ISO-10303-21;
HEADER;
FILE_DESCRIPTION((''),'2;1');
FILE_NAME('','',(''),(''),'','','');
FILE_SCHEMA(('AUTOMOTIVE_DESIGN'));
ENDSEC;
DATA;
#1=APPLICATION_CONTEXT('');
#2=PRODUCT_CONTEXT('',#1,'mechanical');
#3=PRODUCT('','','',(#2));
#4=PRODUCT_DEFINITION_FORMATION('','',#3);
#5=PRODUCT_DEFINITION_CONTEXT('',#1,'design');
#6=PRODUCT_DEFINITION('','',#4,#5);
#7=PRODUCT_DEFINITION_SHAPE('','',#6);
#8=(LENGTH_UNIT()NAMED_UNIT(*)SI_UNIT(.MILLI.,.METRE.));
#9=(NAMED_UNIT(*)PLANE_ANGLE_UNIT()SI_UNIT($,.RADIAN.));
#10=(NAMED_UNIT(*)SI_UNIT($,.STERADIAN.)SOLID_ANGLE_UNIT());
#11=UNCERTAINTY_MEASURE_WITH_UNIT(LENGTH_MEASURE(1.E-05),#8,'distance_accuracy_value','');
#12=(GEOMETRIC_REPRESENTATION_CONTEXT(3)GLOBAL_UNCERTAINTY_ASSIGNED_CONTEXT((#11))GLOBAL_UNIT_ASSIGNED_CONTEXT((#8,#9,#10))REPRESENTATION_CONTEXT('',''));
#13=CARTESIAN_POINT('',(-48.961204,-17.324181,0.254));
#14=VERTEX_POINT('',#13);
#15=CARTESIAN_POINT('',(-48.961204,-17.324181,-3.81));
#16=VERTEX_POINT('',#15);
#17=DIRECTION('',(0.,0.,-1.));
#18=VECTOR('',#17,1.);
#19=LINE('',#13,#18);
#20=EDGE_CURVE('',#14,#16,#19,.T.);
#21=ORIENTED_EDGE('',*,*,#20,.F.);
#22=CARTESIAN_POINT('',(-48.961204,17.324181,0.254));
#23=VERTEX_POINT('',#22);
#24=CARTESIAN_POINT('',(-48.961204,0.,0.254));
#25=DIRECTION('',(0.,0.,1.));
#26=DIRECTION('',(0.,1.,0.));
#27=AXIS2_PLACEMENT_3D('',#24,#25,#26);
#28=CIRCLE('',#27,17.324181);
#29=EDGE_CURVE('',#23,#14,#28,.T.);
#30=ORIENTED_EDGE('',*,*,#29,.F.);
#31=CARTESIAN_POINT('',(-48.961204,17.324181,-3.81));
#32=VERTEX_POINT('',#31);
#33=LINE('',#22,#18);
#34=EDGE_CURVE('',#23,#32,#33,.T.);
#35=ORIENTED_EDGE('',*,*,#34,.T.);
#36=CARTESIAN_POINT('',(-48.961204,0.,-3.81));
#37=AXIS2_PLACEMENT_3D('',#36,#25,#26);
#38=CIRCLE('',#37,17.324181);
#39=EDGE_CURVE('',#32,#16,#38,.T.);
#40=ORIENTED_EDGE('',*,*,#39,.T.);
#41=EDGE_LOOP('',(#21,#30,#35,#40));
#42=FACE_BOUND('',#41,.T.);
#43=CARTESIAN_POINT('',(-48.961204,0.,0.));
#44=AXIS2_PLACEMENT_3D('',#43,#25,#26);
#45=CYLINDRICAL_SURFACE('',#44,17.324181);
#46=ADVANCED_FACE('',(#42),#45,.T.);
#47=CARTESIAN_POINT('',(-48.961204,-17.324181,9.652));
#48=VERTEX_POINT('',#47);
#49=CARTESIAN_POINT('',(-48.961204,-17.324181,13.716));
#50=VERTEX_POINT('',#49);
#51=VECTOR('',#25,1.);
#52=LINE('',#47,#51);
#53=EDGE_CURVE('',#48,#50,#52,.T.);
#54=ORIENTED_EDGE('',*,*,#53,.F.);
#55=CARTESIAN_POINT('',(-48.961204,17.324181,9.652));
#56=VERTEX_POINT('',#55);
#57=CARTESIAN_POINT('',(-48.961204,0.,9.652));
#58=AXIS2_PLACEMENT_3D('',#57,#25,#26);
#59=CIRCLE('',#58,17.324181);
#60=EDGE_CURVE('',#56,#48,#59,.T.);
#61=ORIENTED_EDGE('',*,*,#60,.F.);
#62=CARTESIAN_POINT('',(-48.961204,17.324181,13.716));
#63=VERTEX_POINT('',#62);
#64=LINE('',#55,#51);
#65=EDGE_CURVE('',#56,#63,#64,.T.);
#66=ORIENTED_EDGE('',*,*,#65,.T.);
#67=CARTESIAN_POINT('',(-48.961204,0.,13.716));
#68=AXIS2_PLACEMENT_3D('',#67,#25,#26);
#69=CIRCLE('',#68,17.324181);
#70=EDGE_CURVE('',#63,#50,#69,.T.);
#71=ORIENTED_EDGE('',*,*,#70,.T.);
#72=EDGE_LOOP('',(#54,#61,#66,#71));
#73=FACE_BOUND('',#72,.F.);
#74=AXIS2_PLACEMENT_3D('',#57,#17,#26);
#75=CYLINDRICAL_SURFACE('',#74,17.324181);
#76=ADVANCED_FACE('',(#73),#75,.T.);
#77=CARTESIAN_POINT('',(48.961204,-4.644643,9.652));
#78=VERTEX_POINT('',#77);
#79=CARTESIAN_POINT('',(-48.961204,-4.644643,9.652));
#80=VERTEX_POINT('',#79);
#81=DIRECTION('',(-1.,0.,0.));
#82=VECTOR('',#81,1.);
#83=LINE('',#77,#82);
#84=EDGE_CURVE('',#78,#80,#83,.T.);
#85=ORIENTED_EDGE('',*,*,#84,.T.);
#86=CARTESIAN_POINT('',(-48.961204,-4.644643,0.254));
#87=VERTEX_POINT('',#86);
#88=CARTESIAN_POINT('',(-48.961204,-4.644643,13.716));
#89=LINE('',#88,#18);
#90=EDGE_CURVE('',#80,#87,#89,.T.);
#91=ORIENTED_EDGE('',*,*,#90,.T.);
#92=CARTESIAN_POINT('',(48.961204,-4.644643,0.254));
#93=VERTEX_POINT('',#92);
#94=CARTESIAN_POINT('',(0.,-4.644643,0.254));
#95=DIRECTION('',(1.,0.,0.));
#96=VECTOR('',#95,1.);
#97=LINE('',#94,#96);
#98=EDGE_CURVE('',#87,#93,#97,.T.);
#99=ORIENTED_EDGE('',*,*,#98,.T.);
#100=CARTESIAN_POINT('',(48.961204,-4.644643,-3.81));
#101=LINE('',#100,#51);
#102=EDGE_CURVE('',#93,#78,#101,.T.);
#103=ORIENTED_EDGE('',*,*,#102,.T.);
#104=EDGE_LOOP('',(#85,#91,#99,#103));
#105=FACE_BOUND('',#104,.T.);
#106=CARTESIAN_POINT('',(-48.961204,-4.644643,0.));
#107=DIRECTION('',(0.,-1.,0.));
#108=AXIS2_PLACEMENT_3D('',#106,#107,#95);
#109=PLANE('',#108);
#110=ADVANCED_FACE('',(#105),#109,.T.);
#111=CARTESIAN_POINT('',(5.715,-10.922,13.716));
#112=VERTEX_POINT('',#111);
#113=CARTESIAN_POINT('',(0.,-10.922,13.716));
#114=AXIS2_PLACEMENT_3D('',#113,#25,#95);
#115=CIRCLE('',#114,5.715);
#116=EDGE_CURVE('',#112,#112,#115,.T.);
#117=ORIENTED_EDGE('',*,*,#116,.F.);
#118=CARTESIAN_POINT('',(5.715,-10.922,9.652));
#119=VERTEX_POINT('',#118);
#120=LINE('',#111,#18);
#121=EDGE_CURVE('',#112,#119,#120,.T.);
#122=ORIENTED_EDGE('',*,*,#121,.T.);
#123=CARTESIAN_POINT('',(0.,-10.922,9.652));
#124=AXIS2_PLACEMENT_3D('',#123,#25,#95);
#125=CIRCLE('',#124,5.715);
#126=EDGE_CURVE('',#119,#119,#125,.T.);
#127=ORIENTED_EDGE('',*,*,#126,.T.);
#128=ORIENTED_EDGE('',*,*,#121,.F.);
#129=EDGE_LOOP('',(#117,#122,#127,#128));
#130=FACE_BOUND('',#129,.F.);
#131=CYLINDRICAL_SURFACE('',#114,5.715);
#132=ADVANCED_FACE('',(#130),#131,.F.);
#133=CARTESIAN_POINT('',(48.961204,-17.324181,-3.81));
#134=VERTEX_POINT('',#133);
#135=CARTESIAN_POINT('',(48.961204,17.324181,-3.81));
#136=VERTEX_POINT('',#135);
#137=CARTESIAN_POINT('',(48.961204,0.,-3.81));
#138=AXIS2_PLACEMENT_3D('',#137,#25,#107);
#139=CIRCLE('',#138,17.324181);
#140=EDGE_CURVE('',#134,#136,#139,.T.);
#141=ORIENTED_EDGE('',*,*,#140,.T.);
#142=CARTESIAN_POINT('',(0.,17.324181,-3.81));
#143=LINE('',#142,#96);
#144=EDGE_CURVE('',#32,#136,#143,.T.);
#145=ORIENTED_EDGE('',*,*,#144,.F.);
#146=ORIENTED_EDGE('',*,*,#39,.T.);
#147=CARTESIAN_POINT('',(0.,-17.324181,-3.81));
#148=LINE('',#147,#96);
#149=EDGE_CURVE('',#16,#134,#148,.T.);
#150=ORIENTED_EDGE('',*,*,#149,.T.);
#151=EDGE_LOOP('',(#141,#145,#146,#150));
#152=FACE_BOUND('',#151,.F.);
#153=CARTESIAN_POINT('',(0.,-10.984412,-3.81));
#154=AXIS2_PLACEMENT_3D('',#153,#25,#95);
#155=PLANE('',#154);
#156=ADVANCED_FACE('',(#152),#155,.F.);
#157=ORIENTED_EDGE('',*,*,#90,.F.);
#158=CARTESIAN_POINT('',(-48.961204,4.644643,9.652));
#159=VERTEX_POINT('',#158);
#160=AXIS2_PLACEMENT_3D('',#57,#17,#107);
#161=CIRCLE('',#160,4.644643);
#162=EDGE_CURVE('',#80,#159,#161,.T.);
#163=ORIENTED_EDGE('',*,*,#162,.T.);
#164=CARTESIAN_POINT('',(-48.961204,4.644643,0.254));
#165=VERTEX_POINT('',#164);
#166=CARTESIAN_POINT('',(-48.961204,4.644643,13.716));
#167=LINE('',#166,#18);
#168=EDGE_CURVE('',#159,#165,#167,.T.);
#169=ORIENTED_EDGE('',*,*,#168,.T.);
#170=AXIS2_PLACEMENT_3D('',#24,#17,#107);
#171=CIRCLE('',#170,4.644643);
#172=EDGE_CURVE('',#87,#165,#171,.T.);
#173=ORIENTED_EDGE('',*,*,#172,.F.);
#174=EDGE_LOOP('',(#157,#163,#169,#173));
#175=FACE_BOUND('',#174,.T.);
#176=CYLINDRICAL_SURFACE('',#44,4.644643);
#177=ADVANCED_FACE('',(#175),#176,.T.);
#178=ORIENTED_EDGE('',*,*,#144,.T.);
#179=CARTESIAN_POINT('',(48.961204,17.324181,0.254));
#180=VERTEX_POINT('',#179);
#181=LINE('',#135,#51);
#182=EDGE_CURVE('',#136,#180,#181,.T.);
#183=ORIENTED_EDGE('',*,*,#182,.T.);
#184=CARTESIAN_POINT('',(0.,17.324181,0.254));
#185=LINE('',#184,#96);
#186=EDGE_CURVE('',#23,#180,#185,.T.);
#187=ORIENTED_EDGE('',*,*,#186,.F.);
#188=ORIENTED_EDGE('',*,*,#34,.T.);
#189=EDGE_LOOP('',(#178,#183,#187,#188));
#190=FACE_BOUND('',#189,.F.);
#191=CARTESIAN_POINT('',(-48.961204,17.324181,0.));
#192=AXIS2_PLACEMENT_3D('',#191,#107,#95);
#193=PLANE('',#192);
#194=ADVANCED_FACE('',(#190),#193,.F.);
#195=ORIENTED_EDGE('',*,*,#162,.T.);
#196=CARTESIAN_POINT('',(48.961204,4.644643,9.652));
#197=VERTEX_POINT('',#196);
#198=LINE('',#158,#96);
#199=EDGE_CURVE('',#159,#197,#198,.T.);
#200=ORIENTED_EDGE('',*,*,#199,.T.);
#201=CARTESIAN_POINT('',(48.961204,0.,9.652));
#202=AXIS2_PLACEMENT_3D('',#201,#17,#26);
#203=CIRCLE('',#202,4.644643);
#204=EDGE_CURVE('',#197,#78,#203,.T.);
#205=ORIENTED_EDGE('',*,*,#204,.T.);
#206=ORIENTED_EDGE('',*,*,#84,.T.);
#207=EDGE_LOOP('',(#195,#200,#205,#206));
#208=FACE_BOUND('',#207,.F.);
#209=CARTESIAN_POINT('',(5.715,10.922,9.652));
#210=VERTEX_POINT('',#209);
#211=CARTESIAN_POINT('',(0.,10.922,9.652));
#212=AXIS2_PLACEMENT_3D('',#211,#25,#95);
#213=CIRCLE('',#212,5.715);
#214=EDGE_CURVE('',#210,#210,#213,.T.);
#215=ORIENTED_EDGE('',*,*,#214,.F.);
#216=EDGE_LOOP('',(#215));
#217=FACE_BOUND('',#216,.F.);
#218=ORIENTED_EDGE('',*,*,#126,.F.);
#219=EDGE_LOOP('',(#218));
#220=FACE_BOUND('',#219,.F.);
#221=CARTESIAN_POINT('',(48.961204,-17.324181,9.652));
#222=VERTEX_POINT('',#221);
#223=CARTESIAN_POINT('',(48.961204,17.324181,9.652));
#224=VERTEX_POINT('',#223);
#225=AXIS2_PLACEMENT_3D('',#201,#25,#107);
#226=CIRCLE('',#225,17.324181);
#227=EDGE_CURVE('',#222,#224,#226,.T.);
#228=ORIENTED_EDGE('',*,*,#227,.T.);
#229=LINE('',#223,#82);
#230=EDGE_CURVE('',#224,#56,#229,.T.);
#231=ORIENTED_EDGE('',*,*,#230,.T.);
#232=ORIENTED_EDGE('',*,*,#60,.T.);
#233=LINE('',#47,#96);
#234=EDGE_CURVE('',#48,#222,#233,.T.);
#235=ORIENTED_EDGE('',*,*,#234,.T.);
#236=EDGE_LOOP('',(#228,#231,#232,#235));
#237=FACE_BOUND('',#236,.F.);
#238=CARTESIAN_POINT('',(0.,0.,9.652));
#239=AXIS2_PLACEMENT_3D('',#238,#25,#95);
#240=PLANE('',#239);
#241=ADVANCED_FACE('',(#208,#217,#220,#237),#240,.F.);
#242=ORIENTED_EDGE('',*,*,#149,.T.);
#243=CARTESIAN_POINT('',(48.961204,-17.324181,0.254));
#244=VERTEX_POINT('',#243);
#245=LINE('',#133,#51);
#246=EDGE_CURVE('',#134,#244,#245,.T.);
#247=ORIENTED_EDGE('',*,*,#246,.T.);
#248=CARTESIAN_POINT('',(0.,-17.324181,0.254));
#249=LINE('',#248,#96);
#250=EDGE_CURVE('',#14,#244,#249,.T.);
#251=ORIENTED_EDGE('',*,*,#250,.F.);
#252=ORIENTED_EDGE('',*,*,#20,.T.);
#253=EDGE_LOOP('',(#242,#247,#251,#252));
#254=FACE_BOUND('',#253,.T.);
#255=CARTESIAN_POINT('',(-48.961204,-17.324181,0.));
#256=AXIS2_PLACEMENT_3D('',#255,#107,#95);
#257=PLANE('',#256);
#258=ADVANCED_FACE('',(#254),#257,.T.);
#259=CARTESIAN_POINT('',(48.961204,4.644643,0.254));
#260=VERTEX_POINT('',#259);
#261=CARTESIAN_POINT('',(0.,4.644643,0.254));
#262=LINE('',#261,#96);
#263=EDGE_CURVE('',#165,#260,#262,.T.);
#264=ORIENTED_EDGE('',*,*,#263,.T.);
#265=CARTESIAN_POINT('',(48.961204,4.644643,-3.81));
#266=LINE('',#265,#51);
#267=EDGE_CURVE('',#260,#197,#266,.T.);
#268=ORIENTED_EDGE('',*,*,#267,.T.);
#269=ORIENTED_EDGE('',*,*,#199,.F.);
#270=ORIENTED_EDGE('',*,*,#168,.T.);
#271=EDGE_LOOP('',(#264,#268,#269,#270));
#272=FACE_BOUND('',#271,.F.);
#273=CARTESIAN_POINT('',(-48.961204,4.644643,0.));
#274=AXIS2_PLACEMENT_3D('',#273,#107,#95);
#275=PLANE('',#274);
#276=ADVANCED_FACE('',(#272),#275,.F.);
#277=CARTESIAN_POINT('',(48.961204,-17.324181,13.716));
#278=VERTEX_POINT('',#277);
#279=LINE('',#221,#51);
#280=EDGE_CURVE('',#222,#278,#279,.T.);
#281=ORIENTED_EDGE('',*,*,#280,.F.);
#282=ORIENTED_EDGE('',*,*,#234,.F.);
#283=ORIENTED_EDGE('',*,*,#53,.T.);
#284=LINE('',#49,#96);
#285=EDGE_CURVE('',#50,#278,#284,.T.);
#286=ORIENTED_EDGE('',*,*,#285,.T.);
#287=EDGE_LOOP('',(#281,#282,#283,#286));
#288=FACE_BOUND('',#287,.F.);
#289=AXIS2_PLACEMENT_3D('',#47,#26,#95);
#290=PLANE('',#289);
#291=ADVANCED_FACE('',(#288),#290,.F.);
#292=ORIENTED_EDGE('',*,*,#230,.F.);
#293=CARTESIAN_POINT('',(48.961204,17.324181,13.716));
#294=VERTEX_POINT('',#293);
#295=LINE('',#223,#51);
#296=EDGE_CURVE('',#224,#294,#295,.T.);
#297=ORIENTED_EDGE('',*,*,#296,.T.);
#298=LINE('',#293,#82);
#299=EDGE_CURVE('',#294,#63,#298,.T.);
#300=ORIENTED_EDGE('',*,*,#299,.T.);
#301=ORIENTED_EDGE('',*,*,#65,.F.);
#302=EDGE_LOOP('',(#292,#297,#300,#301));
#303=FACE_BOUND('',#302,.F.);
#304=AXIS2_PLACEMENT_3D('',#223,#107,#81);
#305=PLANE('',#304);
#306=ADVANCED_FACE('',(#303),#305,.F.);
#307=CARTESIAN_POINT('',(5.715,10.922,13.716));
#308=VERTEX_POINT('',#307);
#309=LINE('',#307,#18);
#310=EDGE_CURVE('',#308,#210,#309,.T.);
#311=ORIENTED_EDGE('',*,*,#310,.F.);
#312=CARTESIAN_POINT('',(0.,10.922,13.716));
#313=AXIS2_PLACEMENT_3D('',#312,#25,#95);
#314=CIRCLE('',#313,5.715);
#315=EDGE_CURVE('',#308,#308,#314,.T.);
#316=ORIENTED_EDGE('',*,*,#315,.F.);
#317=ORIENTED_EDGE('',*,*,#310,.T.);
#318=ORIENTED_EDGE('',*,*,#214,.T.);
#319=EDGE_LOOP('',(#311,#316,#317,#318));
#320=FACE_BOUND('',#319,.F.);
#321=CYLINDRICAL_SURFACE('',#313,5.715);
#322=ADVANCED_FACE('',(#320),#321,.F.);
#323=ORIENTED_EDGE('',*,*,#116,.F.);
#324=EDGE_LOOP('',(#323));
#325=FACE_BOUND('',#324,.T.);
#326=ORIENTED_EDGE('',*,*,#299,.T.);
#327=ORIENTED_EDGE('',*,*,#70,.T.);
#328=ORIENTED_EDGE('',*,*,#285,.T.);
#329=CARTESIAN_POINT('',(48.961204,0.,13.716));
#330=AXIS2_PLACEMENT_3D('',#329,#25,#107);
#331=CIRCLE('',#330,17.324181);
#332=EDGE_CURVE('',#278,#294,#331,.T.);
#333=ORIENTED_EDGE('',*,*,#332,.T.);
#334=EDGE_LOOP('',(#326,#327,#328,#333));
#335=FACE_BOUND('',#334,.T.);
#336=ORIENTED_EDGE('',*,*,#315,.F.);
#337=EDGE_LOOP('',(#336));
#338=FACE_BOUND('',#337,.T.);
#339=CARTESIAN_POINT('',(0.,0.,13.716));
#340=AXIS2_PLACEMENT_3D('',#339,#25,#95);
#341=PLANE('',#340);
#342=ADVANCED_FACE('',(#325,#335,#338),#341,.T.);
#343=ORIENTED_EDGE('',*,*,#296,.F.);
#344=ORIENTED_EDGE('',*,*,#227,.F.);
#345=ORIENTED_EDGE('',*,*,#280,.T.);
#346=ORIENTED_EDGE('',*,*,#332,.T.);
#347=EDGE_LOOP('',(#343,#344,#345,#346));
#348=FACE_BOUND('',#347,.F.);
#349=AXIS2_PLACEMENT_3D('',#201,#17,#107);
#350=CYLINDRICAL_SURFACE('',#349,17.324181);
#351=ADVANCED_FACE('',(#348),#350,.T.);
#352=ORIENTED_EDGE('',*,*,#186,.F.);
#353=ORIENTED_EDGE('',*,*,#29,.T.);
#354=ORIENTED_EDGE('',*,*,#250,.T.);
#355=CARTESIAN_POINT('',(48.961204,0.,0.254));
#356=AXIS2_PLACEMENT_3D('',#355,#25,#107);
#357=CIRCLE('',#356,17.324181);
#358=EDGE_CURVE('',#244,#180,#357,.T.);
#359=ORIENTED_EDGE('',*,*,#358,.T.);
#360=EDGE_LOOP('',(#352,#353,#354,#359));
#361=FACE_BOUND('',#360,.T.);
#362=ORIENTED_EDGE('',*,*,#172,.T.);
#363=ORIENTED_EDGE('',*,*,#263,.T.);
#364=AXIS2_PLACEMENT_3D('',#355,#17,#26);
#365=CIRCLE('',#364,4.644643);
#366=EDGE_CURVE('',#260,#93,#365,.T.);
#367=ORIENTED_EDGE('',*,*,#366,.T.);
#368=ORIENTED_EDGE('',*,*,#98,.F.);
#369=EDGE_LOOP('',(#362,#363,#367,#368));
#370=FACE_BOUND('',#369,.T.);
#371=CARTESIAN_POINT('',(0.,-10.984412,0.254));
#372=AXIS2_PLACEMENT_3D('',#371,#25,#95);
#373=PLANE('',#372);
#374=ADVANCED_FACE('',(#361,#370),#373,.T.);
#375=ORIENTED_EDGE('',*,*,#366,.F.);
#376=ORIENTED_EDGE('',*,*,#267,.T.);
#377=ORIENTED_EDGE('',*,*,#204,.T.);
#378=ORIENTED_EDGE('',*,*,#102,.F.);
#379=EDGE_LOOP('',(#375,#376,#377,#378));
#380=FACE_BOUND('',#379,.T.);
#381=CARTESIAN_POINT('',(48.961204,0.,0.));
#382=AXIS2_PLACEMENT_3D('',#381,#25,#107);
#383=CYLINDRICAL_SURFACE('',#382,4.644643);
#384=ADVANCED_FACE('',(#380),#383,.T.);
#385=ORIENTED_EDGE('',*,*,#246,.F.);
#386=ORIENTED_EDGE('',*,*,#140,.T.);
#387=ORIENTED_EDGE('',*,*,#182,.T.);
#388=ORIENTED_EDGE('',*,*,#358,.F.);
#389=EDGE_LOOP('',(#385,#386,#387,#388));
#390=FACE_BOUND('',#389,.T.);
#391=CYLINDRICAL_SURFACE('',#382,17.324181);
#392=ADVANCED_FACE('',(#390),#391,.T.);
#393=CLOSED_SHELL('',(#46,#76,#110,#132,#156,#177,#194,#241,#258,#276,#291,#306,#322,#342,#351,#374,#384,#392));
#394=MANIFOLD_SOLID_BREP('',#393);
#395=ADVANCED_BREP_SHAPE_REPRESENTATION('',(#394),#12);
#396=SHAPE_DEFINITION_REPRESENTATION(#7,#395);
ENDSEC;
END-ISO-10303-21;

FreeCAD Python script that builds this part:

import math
import FreeCAD as App
import Part
import Sketcher
from FreeCAD import Vector
Q = App.Units.Quantity

doc = App.newDocument("Part")
body = doc.addObject("PartDesign::Body", "Body")

# Sketch on XY plane
sketch1 = body.newObject("Sketcher::SketchObject", "Sketch")
sketch1.AttachmentSupport = (doc.getObject("XY_Plane"), [""])
sketch1.MapMode = "FlatFace"
sketch1.addGeometry(Part.LineSegment(Vector(-49, -4.6, 0), Vector(49, -4.6, 0)), False)
sketch1.addGeometry(Part.ArcOfCircle(Part.Circle(Vector(49, 0, 0), Vector(0, 0, 1), 4.6), math.radians(-90), math.radians(90)), False)
sketch1.addGeometry(Part.LineSegment(Vector(49, 4.6, 0), Vector(-49, 4.6, 0)), False)
sketch1.addGeometry(Part.ArcOfCircle(Part.Circle(Vector(-49, 0, 0), Vector(0, 0, 1), 4.6), math.radians(90), math.radians(270)), False)
sketch1.addConstraint(Sketcher.Constraint("Tangent", 0, 2, 1, 1))
sketch1.addConstraint(Sketcher.Constraint("Tangent", 1, 2, 2, 1))
sketch1.addConstraint(Sketcher.Constraint("Tangent", 2, 2, 3, 1))
sketch1.addConstraint(Sketcher.Constraint("Tangent", 3, 2, 0, 1))
sketch1.addConstraint(Sketcher.Constraint("Horizontal", 0))
sketch1.addConstraint(Sketcher.Constraint("Horizontal", 2))
sketch1.addConstraint(Sketcher.Constraint("Symmetric", 1, 3, 3, 3, -1, 1))
sketch1.addConstraint(Sketcher.Constraint("Radius", 1, Q("4.644643 mm")))
sketch1.addConstraint(Sketcher.Constraint("DistanceX", 0, 1, 0, 2, Q("97.922407 mm")))
pad1 = body.newObject("PartDesign::Pad", "Pad")
pad1.Profile = sketch1
pad1.Type = "TwoLengths"
pad1.Length = Q("0.54 in")
pad1.Length2 = Q("0.15 in")

# Sketch on XY plane
sketch2 = body.newObject("Sketcher::SketchObject", "Sketch001")
sketch2.AttachmentSupport = (doc.getObject("XY_Plane"), [""])
sketch2.MapMode = "FlatFace"
sketch2.addGeometry(Part.LineSegment(Vector(-49, -17.3, 0), Vector(49, -17.3, 0)), False)
sketch2.addGeometry(Part.ArcOfCircle(Part.Circle(Vector(49, 0, 0), Vector(0, 0, 1), 17.3), math.radians(-90), math.radians(90)), False)
sketch2.addGeometry(Part.LineSegment(Vector(49, 17.3, 0), Vector(-49, 17.3, 0)), False)
sketch2.addGeometry(Part.ArcOfCircle(Part.Circle(Vector(-49, 0, 0), Vector(0, 0, 1), 17.3), math.radians(90), math.radians(270)), False)
sketch2.addGeometry(Part.LineSegment(Vector(49, -4.6, 0), Vector(-49, -4.6, 0)), False)
sketch2.addGeometry(Part.ArcOfCircle(Part.Circle(Vector(-49, 0, 0), Vector(0, 0, 1), 4.6), math.radians(90), math.radians(270)), False)
sketch2.addGeometry(Part.LineSegment(Vector(-49, 4.6, 0), Vector(49, 4.6, 0)), False)
sketch2.addGeometry(Part.ArcOfCircle(Part.Circle(Vector(49, 0, 0), Vector(0, 0, 1), 4.6), math.radians(-90), math.radians(90)), False)
sketch2.addConstraint(Sketcher.Constraint("Tangent", 0, 2, 1, 1))
sketch2.addConstraint(Sketcher.Constraint("Tangent", 1, 2, 2, 1))
sketch2.addConstraint(Sketcher.Constraint("Tangent", 2, 2, 3, 1))
sketch2.addConstraint(Sketcher.Constraint("Tangent", 3, 2, 0, 1))
sketch2.addConstraint(Sketcher.Constraint("Tangent", 4, 2, 5, 2))
sketch2.addConstraint(Sketcher.Constraint("Tangent", 5, 1, 6, 1))
sketch2.addConstraint(Sketcher.Constraint("Tangent", 6, 2, 7, 2))
sketch2.addConstraint(Sketcher.Constraint("Tangent", 7, 1, 4, 1))
sketch2.addConstraint(Sketcher.Constraint("Horizontal", 0))
sketch2.addConstraint(Sketcher.Constraint("Horizontal", 2))
sketch2.addConstraint(Sketcher.Constraint("Horizontal", 4))
sketch2.addConstraint(Sketcher.Constraint("Horizontal", 6))
sketch2.addConstraint(Sketcher.Constraint("Coincident", 5, 3, 3, 3))
sketch2.addConstraint(Sketcher.Constraint("Symmetric", 1, 3, 3, 3, -1, 1))
sketch2.addConstraint(Sketcher.Constraint("Vertical", 7, 3, 0, 2))
sketch2.addConstraint(Sketcher.Constraint("Radius", 1, Q("17.324181 mm")))
sketch2.addConstraint(Sketcher.Constraint("Radius", 5, Q("4.644643 mm")))
sketch2.addConstraint(Sketcher.Constraint("DistanceX", 0, 1, 0, 2, Q("97.922407 mm")))
pad2 = body.newObject("PartDesign::Pad", "Pad001")
pad2.Profile = sketch2
pad2.Type = "TwoLengths"
pad2.Length = Q("0.01 in")
pad2.Length2 = Q("0.15 in")

# Sketch on XY plane
sketch3 = body.newObject("Sketcher::SketchObject", "Sketch002")
sketch3.AttachmentSupport = (doc.getObject("XY_Plane"), [""])
sketch3.MapMode = "FlatFace"
sketch3.AttachmentOffset = App.Placement(Vector(0, 0, 0.38 * 25.4), App.Rotation())
sketch3.addGeometry(Part.LineSegment(Vector(-49, -17.3, 0), Vector(49, -17.3, 0)), False)
sketch3.addGeometry(Part.ArcOfCircle(Part.Circle(Vector(49, 0, 0), Vector(0, 0, 1), 17.3), math.radians(-90), math.radians(90)), False)
sketch3.addGeometry(Part.LineSegment(Vector(49, 17.3, 0), Vector(-49, 17.3, 0)), False)
sketch3.addGeometry(Part.ArcOfCircle(Part.Circle(Vector(-49, 0, 0), Vector(0, 0, 1), 17.3), math.radians(90), math.radians(270)), False)
sketch3.addGeometry(Part.ArcOfCircle(Part.Circle(Vector(49, 0, 0), Vector(0, 0, 1), 4.6), math.radians(-90), math.radians(90)), False)
sketch3.addGeometry(Part.LineSegment(Vector(49, -4.6, 0), Vector(-49, -4.6, 0)), False)
sketch3.addGeometry(Part.ArcOfCircle(Part.Circle(Vector(-49, 0, 0), Vector(0, 0, 1), 4.6), math.radians(90), math.radians(270)), False)
sketch3.addGeometry(Part.LineSegment(Vector(-49, 4.6, 0), Vector(49, 4.6, 0)), False)
sketch3.addConstraint(Sketcher.Constraint("Tangent", 0, 2, 1, 1))
sketch3.addConstraint(Sketcher.Constraint("Tangent", 1, 2, 2, 1))
sketch3.addConstraint(Sketcher.Constraint("Tangent", 2, 2, 3, 1))
sketch3.addConstraint(Sketcher.Constraint("Tangent", 3, 2, 0, 1))
sketch3.addConstraint(Sketcher.Constraint("Tangent", 4, 1, 5, 1))
sketch3.addConstraint(Sketcher.Constraint("Tangent", 5, 2, 6, 2))
sketch3.addConstraint(Sketcher.Constraint("Tangent", 6, 1, 7, 1))
sketch3.addConstraint(Sketcher.Constraint("Tangent", 7, 2, 4, 2))
sketch3.addConstraint(Sketcher.Constraint("Horizontal", 0))
sketch3.addConstraint(Sketcher.Constraint("Horizontal", 2))
sketch3.addConstraint(Sketcher.Constraint("Horizontal", 5))
sketch3.addConstraint(Sketcher.Constraint("Horizontal", 7))
sketch3.addConstraint(Sketcher.Constraint("Coincident", 4, 3, 1, 3))
sketch3.addConstraint(Sketcher.Constraint("Symmetric", 1, 3, 3, 3, -1, 1))
sketch3.addConstraint(Sketcher.Constraint("Vertical", 6, 3, 2, 2))
sketch3.addConstraint(Sketcher.Constraint("Radius", 1, Q("17.324181 mm")))
sketch3.addConstraint(Sketcher.Constraint("Radius", 4, Q("4.644643 mm")))
sketch3.addConstraint(Sketcher.Constraint("DistanceX", 0, 1, 0, 2, Q("97.922407 mm")))
pad3 = body.newObject("PartDesign::Pad", "Pad002")
pad3.Profile = sketch3
pad3.Length = Q("0.16 in")

# Sketch on XY plane
sketch4 = body.newObject("Sketcher::SketchObject", "Sketch003")
sketch4.AttachmentSupport = (doc.getObject("XY_Plane"), [""])
sketch4.MapMode = "FlatFace"
sketch4.AttachmentOffset = App.Placement(Vector(0, 0, 0.54 * 25.4), App.Rotation())
sketch4.addGeometry(Part.Circle(Vector(0, 11, 0), Vector(0, 0, 1), 6), False)
sketch4.addGeometry(Part.Circle(Vector(0, -11, 0), Vector(0, 0, 1), 6), False)
sketch4.addConstraint(Sketcher.Constraint("Equal", 0, 1))
sketch4.addConstraint(Sketcher.Constraint("Symmetric", 0, 3, 1, 3, -1, 1))
sketch4.addConstraint(Sketcher.Constraint("PointOnObject", 0, 3, -2))
sketch4.addConstraint(Sketcher.Constraint("Diameter", 0, Q("0.45 in")))
sketch4.addConstraint(Sketcher.Constraint("DistanceY", -1, 1, 0, 3, Q("0.43 in")))
pocket1 = body.newObject("PartDesign::Pocket", "Pocket")
pocket1.Profile = sketch4
pocket1.Length = Q("0.18 in")

doc.recompute()
